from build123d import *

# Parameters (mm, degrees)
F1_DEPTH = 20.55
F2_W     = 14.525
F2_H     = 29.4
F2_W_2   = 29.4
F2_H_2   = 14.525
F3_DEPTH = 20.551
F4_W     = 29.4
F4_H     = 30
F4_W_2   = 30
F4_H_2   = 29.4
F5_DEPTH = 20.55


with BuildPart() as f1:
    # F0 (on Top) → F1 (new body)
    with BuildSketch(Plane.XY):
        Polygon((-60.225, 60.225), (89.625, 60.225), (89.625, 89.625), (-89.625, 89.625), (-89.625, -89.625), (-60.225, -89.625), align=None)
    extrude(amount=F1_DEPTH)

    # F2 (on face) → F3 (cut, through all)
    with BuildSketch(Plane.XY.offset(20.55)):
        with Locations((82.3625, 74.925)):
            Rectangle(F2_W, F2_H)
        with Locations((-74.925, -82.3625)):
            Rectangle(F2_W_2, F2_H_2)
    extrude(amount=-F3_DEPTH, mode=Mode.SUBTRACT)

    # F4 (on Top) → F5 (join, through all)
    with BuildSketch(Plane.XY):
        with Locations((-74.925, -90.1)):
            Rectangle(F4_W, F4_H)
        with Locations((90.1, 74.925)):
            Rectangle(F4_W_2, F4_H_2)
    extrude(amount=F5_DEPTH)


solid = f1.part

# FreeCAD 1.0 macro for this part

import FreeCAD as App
import Part
import Sketcher

V = App.Vector


def add_polygon(sketch, points):
    """Adds a closed chain of lines whose ends are joined by coincident constraints."""
    first, n = sketch.GeometryCount, len(points)
    for a, b in zip(points, points[1:] + points[:1]):
        sketch.addGeometry(Part.LineSegment(App.Vector(*a, 0), App.Vector(*b, 0)), False)
    for i in range(n):
        sketch.addConstraint(Sketcher.Constraint("Coincident", first + i, 2, first + (i + 1) % n, 1))

doc = App.newDocument("Part")
body = doc.addObject("PartDesign::Body", "Body")

sketch1 = body.newObject("Sketcher::SketchObject", "Sketch")
sketch1.AttachmentSupport = (doc.getObject("XY_Plane"), [""])
sketch1.MapMode = "FlatFace"
add_polygon(sketch1, [(-60, 60), (90, 60), (90, 90), (-90, 90), (-90, -90), (-60, -90)])
sketch1.addConstraint(Sketcher.Constraint("Horizontal", 0))
sketch1.addConstraint(Sketcher.Constraint("Vertical", 1))
sketch1.addConstraint(Sketcher.Constraint("Horizontal", 2))
sketch1.addConstraint(Sketcher.Constraint("Vertical", 3))
sketch1.addConstraint(Sketcher.Constraint("Horizontal", 4))
sketch1.addConstraint(Sketcher.Constraint("Vertical", 5))
sketch1.addConstraint(Sketcher.Constraint("Symmetric", 1, 2, 3, 2, -1, 1))
sketch1.addConstraint(Sketcher.Constraint("Equal", 4, 1))
sketch1.addConstraint(Sketcher.Constraint("Equal", 2, 3))
sketch1.addConstraint(Sketcher.Constraint("DistanceX", 4, 1, 4, 2, 29.4))
sketch1.addConstraint(Sketcher.Constraint("DistanceX", 0, 1, 0, 2, 149.85))
pad1 = body.newObject("PartDesign::Pad", "Pad")
pad1.Profile = sketch1
pad1.Length = 20.55

sketch2 = body.newObject("Sketcher::SketchObject", "Sketch001")
sketch2.AttachmentSupport = (doc.getObject("XY_Plane"), [""])
sketch2.MapMode = "FlatFace"
sketch2.AttachmentOffset = App.Placement(V(0, 0, 20.55), App.Rotation())
add_polygon(sketch2, [(75, 90), (75, 60), (90, 60), (90, 90)])
add_polygon(sketch2, [(-90, -75), (-90, -90), (-60, -90), (-60, -75)])
sketch2.addConstraint(Sketcher.Constraint("Vertical", 0))
sketch2.addConstraint(Sketcher.Constraint("Horizontal", 1))
sketch2.addConstraint(Sketcher.Constraint("Vertical", 2))
sketch2.addConstraint(Sketcher.Constraint("Horizontal", 3))
sketch2.addConstraint(Sketcher.Constraint("Vertical", 4))
sketch2.addConstraint(Sketcher.Constraint("Horizontal", 5))
sketch2.addConstraint(Sketcher.Constraint("Vertical", 6))
sketch2.addConstraint(Sketcher.Constraint("Horizontal", 7))
sketch2.addConstraint(Sketcher.Constraint("Symmetric", 2, 2, 4, 2, -1, 1))
sketch2.addConstraint(Sketcher.Constraint("Equal", 7, 0))
sketch2.addConstraint(Sketcher.Constraint("Equal", 3, 4))
sketch2.addConstraint(Sketcher.Constraint("DistanceX", 5, 1, 5, 2, 29.4))
sketch2.addConstraint(Sketcher.Constraint("DistanceX", -1, 1, 0, 2, 75.1))
sketch2.addConstraint(Sketcher.Constraint("DistanceY", 6, 2, -1, 1, 75.1))
sketch2.addConstraint(Sketcher.Constraint("DistanceX", 1, 1, 1, 2, 14.525))
pocket1 = body.newObject("PartDesign::Pocket", "Pocket")
pocket1.Profile = sketch2
pocket1.Type = "ThroughAll"

sketch3 = body.newObject("Sketcher::SketchObject", "Sketch002")
sketch3.AttachmentSupport = (doc.getObject("XY_Plane"), [""])
sketch3.MapMode = "FlatFace"
add_polygon(sketch3, [(-90, -75), (-90, -105), (-60, -105), (-60, -75)])
add_polygon(sketch3, [(75, 90), (75, 60), (105, 60), (105, 90)])
sketch3.addConstraint(Sketcher.Constraint("Vertical", 0))
sketch3.addConstraint(Sketcher.Constraint("Horizontal", 1))
sketch3.addConstraint(Sketcher.Constraint("Vertical", 2))
sketch3.addConstraint(Sketcher.Constraint("Horizontal", 3))
sketch3.addConstraint(Sketcher.Constraint("Vertical", 4))
sketch3.addConstraint(Sketcher.Constraint("Horizontal", 5))
sketch3.addConstraint(Sketcher.Constraint("Vertical", 6))
sketch3.addConstraint(Sketcher.Constraint("Horizontal", 7))
sketch3.addConstraint(Sketcher.Constraint("Equal", 7, 0))
sketch3.addConstraint(Sketcher.Constraint("Equal", 3, 4))
sketch3.addConstraint(Sketcher.Constraint("DistanceX", 5, 1, 5, 2, 30.0))
sketch3.addConstraint(Sketcher.Constraint("DistanceX", 1, 1, 1, 2, 29.4))
sketch3.addConstraint(Sketcher.Constraint("DistanceY", 0, 2, -1, 1, 105.1))
sketch3.addConstraint(Sketcher.Constraint("DistanceX", -1, 1, 4, 2, 75.1))
sketch3.addConstraint(Sketcher.Constraint("DistanceX", 0, 2, -1, 1, 89.625))
sketch3.addConstraint(Sketcher.Constraint("DistanceY", -1, 1, 4, 2, 60.225))
pad2 = body.newObject("PartDesign::Pad", "Pad001")
pad2.Profile = sketch3
pad2.Length = 20.55

doc.recompute()
